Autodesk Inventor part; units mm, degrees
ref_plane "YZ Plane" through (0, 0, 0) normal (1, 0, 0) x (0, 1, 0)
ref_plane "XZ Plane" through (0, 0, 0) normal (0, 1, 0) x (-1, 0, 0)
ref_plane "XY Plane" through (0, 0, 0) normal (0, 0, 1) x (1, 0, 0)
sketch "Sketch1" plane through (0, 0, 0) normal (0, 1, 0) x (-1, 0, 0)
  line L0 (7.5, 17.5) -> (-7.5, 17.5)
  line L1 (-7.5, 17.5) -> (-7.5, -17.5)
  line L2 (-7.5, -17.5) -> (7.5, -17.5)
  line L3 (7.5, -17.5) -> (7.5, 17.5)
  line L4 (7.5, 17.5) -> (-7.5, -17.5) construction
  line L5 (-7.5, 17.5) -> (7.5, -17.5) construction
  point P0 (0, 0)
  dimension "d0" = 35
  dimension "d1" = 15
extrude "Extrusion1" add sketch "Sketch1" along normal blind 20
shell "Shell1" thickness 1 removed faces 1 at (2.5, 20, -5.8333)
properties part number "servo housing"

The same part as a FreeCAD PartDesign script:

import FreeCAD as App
import Part
import Sketcher

V = App.Vector


def faces_at(feature, points):
    """Names of the faces that lie closest to the given points."""
    faces = feature.Shape.Faces
    near = lambda p: min(range(len(faces)), key=lambda i: faces[i].distToShape(Part.Vertex(*p))[0])
    return sorted({f"Face{near(p) + 1}" for p in points})

doc = App.newDocument("Part")
params = doc.addObject("Spreadsheet::Sheet", "Params")
for row, (alias, value) in enumerate([
    ("sketch1_width", "15 mm"),
    ("sketch1_height", "35 mm"),
    ("pad1_length", "20 mm"),
    ("thickness_wall", "1 mm"),
], start=1):
    params.set(f"A{row}", alias)
    params.set(f"B{row}", "=" + value)
    params.setAlias(f"B{row}", alias)

body = doc.addObject("PartDesign::Body", "Body")

# Sketch on XZ plane
sketch1 = body.newObject("Sketcher::SketchObject", "Sketch")
sketch1.AttachmentSupport = (doc.getObject("XZ_Plane"), [""])
sketch1.MapMode = "FlatFace"
sketch1.addGeometry([
    Part.LineSegment(V(-7.5, -17.5, 0), V(-7.5, 17.5, 0)),
    Part.LineSegment(V(-7.5, 17.5, 0), V(7.5, 17.5, 0)),
    Part.LineSegment(V(7.5, 17.5, 0), V(7.5, -17.5, 0)),
    Part.LineSegment(V(7.5, -17.5, 0), V(-7.5, -17.5, 0)),
], False)
sketch1.addConstraint([
    Sketcher.Constraint("Coincident", 0, 2, 1, 1),
    Sketcher.Constraint("Coincident", 1, 2, 2, 1),
    Sketcher.Constraint("Coincident", 2, 2, 3, 1),
    Sketcher.Constraint("Coincident", 3, 2, 0, 1),
    Sketcher.Constraint("Vertical", 0),
    Sketcher.Constraint("Horizontal", 1),
    Sketcher.Constraint("Vertical", 2),
    Sketcher.Constraint("Horizontal", 3),
    Sketcher.Constraint("Symmetric", 0, 2, 2, 2, -1, 1),
    Sketcher.Constraint("DistanceX", 1, 1, 1, 2, 15.0),
    Sketcher.Constraint("DistanceY", 0, 1, 0, 2, 35.0),
])
sketch1.setExpression("Constraints[9]", "Params.sketch1_width")
sketch1.setExpression("Constraints[10]", "Params.sketch1_height")
pad1 = body.newObject("PartDesign::Pad", "Pad")
pad1.Profile = sketch1
pad1.setExpression("Length", "Params.pad1_length")
pad1.Reversed = True
doc.recompute()

thickness = body.newObject("PartDesign::Thickness", "Thickness")
thickness.Base = (pad1, faces_at(pad1, [(2.5, 20, -5.833)]))
thickness.setExpression("Value", "Params.thickness_wall")
thickness.Reversed = True
thickness.Join = "Intersection"

doc.recompute()
